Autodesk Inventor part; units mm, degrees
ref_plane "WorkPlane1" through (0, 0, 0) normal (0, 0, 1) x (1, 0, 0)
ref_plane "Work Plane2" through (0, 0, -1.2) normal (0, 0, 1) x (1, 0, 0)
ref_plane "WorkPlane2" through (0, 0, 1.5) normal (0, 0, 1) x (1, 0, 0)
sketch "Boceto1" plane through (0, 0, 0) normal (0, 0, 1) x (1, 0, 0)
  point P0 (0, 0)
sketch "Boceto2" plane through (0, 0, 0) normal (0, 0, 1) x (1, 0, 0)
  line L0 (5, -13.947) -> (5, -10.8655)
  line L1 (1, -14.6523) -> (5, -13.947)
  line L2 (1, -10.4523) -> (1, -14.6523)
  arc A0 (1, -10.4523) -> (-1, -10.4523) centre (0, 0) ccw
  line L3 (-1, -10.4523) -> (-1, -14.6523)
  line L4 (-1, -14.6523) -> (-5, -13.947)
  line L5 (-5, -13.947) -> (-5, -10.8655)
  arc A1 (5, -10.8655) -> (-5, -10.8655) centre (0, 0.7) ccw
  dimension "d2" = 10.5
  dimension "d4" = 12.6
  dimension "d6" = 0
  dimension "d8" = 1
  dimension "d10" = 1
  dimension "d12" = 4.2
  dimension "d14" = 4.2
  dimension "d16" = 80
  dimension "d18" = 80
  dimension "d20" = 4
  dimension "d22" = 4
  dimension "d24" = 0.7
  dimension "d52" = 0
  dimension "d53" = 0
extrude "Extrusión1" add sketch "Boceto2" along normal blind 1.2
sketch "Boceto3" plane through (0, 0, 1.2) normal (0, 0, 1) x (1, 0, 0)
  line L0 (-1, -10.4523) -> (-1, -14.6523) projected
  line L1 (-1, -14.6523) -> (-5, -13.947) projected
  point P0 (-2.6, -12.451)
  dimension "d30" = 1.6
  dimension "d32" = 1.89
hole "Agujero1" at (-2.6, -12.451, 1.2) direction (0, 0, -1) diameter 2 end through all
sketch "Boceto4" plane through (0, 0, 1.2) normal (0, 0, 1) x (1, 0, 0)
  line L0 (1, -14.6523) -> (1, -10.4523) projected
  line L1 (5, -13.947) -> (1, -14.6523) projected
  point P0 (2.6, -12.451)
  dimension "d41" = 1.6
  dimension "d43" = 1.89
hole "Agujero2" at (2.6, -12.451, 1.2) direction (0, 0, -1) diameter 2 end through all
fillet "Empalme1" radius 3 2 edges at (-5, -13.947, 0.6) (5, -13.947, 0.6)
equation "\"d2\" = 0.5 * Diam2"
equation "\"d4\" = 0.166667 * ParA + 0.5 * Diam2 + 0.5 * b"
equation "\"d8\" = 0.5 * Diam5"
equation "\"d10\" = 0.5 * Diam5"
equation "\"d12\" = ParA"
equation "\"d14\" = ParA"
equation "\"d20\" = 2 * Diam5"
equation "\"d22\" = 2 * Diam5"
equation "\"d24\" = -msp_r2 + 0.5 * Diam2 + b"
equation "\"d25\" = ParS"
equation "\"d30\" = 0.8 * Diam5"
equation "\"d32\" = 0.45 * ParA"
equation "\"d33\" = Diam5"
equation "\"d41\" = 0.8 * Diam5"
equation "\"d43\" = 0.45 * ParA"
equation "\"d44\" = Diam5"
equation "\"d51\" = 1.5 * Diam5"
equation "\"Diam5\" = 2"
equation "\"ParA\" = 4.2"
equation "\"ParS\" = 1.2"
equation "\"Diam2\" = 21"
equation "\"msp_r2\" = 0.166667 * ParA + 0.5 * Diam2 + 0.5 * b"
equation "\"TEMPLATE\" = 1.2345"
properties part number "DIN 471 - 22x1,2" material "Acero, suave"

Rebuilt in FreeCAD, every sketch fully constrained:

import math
import FreeCAD as App
import Part
import Sketcher
Q = App.Units.Quantity


def edges_at(feature, points):
    """Names of the edges that pass closest to the given points."""
    edges = feature.Shape.Edges
    near = lambda p: min(range(len(edges)), key=lambda i: edges[i].distToShape(Part.Vertex(*p))[0])
    return sorted({f"Edge{near(p) + 1}" for p in points})

doc = App.newDocument("Part")
body = doc.addObject("PartDesign::Body", "Body")

sketch1 = doc.addObject("Sketcher::SketchObject", "Sketch")
body.addObject(sketch1)
sketch1.AttachmentSupport = (doc.XY_Plane, [""])
sketch1.MapMode = "FlatFace"
sketch1.addGeometry(Part.LineSegment(App.Vector(1, -14.6523, 0), App.Vector(5, -13.947, 0)), False)
sketch1.addGeometry(Part.LineSegment(App.Vector(5, -13.947, 0), App.Vector(5, -10.8655, 0)), False)
sketch1.addGeometry(Part.ArcOfCircle(Part.Circle(App.Vector(0, 0.7, 0), App.Vector(0, 0, 1), 12.600031), math.radians(-66.620194), math.radians(246.620194)), False)
sketch1.addGeometry(Part.LineSegment(App.Vector(-5, -10.8655, 0), App.Vector(-5, -13.947, 0)), False)
sketch1.addGeometry(Part.LineSegment(App.Vector(-5, -13.947, 0), App.Vector(-1, -14.6523, 0)), False)
sketch1.addGeometry(Part.LineSegment(App.Vector(-1, -14.6523, 0), App.Vector(-1, -10.4523, 0)), False)
sketch1.addGeometry(Part.ArcOfCircle(Part.Circle(App.Vector(0, 0, 0), App.Vector(0, 0, 1), 10.500027), math.radians(-84.534991), math.radians(264.534991)), False)
sketch1.addGeometry(Part.LineSegment(App.Vector(1, -10.4523, 0), App.Vector(1, -14.6523, 0)), False)
sketch1.addConstraint(Sketcher.Constraint("Coincident", 0, 2, 1, 1))
sketch1.addConstraint(Sketcher.Constraint("Coincident", 1, 2, 2, 1))
sketch1.addConstraint(Sketcher.Constraint("Coincident", 2, 2, 3, 1))
sketch1.addConstraint(Sketcher.Constraint("Coincident", 3, 2, 4, 1))
sketch1.addConstraint(Sketcher.Constraint("Coincident", 4, 2, 5, 1))
sketch1.addConstraint(Sketcher.Constraint("Coincident", 5, 2, 6, 2))
sketch1.addConstraint(Sketcher.Constraint("Coincident", 6, 1, 7, 1))
sketch1.addConstraint(Sketcher.Constraint("Coincident", 7, 2, 0, 1))
sketch1.addConstraint(Sketcher.Constraint("Vertical", 1))
sketch1.addConstraint(Sketcher.Constraint("Vertical", 3))
sketch1.addConstraint(Sketcher.Constraint("Vertical", 5))
sketch1.addConstraint(Sketcher.Constraint("Vertical", 7))
sketch1.addConstraint(Sketcher.Constraint("Coincident", 6, 3, -1, 1))
sketch1.addConstraint(Sketcher.Constraint("Symmetric", 1, 2, 2, 2, -2))
sketch1.addConstraint(Sketcher.Constraint("Symmetric", 4, 2, 7, 2, -2))
sketch1.addConstraint(Sketcher.Constraint("Horizontal", 0, 2, 3, 2))
sketch1.addConstraint(Sketcher.Constraint("Radius", 2, Q("12.6 mm")))
sketch1.addConstraint(Sketcher.Constraint("Radius", 6, Q("10.5 mm")))
sketch1.addConstraint(Sketcher.Constraint("DistanceY", 5, 1, 5, 2, Q("4.2 mm")))
sketch1.addConstraint(Sketcher.Constraint("DistanceX", 4, 2, -1, 1, Q("1 mm")))
sketch1.addConstraint(Sketcher.Constraint("DistanceX", 3, 2, 4, 2, Q("4 mm")))
sketch1.addConstraint(Sketcher.Constraint("DistanceY", -1, 1, 2, 3, Q("0.7 mm")))
sketch1.addConstraint(Sketcher.Constraint("Angle", 0, Q("10 deg")))
pad1 = doc.addObject("PartDesign::Pad", "Pad")
body.addObject(pad1)
pad1.Profile = sketch1
pad1.Length = 1.2

sketch2 = doc.addObject("Sketcher::SketchObject", "Sketch001")
body.addObject(sketch2)
sketch2.AttachmentSupport = (doc.XY_Plane, [""])
sketch2.MapMode = "FlatFace"
sketch2.AttachmentOffset = App.Placement(App.Vector(0, 0, 1.2), App.Rotation())
sketch2.addGeometry(Part.Circle(App.Vector(-2.6, -12.451, 0), App.Vector(0, 0, 1), 1), False)
sketch2.addConstraint(Sketcher.Constraint("Diameter", 0, Q("2 mm")))
sketch2.addConstraint(Sketcher.Constraint("DistanceX", 0, 3, -1, 1, Q("2.6 mm")))
sketch2.addConstraint(Sketcher.Constraint("DistanceY", 0, 3, -1, 1, Q("12.451 mm")))
doc.recompute()
hole = doc.addObject("PartDesign::Hole", "Hole")
body.addObject(hole)
hole.Profile = sketch2
hole.ThreadType = "None"
hole.Diameter = 2
hole.DepthType = "ThroughAll"

sketch3 = doc.addObject("Sketcher::SketchObject", "Sketch002")
body.addObject(sketch3)
sketch3.AttachmentSupport = (doc.XY_Plane, [""])
sketch3.MapMode = "FlatFace"
sketch3.AttachmentOffset = App.Placement(App.Vector(0, 0, 1.2), App.Rotation())
sketch3.addGeometry(Part.Circle(App.Vector(2.6, -12.451, 0), App.Vector(0, 0, 1), 1), False)
sketch3.addConstraint(Sketcher.Constraint("Diameter", 0, Q("2 mm")))
sketch3.addConstraint(Sketcher.Constraint("DistanceX", -1, 1, 0, 3, Q("2.6 mm")))
sketch3.addConstraint(Sketcher.Constraint("DistanceY", 0, 3, -1, 1, Q("12.451 mm")))
doc.recompute()
hole2 = doc.addObject("PartDesign::Hole", "Hole001")
body.addObject(hole2)
hole2.Profile = sketch3
hole2.ThreadType = "None"
hole2.Diameter = 2
hole2.DepthType = "ThroughAll"
doc.recompute()

fillet = doc.addObject("PartDesign::Fillet", "Fillet")
body.addObject(fillet)
fillet.Base = (hole2, edges_at(hole2, [(-5, -13.947, 0.6), (5, -13.947, 0.6)]))
fillet.Radius = 3

doc.recompute()
